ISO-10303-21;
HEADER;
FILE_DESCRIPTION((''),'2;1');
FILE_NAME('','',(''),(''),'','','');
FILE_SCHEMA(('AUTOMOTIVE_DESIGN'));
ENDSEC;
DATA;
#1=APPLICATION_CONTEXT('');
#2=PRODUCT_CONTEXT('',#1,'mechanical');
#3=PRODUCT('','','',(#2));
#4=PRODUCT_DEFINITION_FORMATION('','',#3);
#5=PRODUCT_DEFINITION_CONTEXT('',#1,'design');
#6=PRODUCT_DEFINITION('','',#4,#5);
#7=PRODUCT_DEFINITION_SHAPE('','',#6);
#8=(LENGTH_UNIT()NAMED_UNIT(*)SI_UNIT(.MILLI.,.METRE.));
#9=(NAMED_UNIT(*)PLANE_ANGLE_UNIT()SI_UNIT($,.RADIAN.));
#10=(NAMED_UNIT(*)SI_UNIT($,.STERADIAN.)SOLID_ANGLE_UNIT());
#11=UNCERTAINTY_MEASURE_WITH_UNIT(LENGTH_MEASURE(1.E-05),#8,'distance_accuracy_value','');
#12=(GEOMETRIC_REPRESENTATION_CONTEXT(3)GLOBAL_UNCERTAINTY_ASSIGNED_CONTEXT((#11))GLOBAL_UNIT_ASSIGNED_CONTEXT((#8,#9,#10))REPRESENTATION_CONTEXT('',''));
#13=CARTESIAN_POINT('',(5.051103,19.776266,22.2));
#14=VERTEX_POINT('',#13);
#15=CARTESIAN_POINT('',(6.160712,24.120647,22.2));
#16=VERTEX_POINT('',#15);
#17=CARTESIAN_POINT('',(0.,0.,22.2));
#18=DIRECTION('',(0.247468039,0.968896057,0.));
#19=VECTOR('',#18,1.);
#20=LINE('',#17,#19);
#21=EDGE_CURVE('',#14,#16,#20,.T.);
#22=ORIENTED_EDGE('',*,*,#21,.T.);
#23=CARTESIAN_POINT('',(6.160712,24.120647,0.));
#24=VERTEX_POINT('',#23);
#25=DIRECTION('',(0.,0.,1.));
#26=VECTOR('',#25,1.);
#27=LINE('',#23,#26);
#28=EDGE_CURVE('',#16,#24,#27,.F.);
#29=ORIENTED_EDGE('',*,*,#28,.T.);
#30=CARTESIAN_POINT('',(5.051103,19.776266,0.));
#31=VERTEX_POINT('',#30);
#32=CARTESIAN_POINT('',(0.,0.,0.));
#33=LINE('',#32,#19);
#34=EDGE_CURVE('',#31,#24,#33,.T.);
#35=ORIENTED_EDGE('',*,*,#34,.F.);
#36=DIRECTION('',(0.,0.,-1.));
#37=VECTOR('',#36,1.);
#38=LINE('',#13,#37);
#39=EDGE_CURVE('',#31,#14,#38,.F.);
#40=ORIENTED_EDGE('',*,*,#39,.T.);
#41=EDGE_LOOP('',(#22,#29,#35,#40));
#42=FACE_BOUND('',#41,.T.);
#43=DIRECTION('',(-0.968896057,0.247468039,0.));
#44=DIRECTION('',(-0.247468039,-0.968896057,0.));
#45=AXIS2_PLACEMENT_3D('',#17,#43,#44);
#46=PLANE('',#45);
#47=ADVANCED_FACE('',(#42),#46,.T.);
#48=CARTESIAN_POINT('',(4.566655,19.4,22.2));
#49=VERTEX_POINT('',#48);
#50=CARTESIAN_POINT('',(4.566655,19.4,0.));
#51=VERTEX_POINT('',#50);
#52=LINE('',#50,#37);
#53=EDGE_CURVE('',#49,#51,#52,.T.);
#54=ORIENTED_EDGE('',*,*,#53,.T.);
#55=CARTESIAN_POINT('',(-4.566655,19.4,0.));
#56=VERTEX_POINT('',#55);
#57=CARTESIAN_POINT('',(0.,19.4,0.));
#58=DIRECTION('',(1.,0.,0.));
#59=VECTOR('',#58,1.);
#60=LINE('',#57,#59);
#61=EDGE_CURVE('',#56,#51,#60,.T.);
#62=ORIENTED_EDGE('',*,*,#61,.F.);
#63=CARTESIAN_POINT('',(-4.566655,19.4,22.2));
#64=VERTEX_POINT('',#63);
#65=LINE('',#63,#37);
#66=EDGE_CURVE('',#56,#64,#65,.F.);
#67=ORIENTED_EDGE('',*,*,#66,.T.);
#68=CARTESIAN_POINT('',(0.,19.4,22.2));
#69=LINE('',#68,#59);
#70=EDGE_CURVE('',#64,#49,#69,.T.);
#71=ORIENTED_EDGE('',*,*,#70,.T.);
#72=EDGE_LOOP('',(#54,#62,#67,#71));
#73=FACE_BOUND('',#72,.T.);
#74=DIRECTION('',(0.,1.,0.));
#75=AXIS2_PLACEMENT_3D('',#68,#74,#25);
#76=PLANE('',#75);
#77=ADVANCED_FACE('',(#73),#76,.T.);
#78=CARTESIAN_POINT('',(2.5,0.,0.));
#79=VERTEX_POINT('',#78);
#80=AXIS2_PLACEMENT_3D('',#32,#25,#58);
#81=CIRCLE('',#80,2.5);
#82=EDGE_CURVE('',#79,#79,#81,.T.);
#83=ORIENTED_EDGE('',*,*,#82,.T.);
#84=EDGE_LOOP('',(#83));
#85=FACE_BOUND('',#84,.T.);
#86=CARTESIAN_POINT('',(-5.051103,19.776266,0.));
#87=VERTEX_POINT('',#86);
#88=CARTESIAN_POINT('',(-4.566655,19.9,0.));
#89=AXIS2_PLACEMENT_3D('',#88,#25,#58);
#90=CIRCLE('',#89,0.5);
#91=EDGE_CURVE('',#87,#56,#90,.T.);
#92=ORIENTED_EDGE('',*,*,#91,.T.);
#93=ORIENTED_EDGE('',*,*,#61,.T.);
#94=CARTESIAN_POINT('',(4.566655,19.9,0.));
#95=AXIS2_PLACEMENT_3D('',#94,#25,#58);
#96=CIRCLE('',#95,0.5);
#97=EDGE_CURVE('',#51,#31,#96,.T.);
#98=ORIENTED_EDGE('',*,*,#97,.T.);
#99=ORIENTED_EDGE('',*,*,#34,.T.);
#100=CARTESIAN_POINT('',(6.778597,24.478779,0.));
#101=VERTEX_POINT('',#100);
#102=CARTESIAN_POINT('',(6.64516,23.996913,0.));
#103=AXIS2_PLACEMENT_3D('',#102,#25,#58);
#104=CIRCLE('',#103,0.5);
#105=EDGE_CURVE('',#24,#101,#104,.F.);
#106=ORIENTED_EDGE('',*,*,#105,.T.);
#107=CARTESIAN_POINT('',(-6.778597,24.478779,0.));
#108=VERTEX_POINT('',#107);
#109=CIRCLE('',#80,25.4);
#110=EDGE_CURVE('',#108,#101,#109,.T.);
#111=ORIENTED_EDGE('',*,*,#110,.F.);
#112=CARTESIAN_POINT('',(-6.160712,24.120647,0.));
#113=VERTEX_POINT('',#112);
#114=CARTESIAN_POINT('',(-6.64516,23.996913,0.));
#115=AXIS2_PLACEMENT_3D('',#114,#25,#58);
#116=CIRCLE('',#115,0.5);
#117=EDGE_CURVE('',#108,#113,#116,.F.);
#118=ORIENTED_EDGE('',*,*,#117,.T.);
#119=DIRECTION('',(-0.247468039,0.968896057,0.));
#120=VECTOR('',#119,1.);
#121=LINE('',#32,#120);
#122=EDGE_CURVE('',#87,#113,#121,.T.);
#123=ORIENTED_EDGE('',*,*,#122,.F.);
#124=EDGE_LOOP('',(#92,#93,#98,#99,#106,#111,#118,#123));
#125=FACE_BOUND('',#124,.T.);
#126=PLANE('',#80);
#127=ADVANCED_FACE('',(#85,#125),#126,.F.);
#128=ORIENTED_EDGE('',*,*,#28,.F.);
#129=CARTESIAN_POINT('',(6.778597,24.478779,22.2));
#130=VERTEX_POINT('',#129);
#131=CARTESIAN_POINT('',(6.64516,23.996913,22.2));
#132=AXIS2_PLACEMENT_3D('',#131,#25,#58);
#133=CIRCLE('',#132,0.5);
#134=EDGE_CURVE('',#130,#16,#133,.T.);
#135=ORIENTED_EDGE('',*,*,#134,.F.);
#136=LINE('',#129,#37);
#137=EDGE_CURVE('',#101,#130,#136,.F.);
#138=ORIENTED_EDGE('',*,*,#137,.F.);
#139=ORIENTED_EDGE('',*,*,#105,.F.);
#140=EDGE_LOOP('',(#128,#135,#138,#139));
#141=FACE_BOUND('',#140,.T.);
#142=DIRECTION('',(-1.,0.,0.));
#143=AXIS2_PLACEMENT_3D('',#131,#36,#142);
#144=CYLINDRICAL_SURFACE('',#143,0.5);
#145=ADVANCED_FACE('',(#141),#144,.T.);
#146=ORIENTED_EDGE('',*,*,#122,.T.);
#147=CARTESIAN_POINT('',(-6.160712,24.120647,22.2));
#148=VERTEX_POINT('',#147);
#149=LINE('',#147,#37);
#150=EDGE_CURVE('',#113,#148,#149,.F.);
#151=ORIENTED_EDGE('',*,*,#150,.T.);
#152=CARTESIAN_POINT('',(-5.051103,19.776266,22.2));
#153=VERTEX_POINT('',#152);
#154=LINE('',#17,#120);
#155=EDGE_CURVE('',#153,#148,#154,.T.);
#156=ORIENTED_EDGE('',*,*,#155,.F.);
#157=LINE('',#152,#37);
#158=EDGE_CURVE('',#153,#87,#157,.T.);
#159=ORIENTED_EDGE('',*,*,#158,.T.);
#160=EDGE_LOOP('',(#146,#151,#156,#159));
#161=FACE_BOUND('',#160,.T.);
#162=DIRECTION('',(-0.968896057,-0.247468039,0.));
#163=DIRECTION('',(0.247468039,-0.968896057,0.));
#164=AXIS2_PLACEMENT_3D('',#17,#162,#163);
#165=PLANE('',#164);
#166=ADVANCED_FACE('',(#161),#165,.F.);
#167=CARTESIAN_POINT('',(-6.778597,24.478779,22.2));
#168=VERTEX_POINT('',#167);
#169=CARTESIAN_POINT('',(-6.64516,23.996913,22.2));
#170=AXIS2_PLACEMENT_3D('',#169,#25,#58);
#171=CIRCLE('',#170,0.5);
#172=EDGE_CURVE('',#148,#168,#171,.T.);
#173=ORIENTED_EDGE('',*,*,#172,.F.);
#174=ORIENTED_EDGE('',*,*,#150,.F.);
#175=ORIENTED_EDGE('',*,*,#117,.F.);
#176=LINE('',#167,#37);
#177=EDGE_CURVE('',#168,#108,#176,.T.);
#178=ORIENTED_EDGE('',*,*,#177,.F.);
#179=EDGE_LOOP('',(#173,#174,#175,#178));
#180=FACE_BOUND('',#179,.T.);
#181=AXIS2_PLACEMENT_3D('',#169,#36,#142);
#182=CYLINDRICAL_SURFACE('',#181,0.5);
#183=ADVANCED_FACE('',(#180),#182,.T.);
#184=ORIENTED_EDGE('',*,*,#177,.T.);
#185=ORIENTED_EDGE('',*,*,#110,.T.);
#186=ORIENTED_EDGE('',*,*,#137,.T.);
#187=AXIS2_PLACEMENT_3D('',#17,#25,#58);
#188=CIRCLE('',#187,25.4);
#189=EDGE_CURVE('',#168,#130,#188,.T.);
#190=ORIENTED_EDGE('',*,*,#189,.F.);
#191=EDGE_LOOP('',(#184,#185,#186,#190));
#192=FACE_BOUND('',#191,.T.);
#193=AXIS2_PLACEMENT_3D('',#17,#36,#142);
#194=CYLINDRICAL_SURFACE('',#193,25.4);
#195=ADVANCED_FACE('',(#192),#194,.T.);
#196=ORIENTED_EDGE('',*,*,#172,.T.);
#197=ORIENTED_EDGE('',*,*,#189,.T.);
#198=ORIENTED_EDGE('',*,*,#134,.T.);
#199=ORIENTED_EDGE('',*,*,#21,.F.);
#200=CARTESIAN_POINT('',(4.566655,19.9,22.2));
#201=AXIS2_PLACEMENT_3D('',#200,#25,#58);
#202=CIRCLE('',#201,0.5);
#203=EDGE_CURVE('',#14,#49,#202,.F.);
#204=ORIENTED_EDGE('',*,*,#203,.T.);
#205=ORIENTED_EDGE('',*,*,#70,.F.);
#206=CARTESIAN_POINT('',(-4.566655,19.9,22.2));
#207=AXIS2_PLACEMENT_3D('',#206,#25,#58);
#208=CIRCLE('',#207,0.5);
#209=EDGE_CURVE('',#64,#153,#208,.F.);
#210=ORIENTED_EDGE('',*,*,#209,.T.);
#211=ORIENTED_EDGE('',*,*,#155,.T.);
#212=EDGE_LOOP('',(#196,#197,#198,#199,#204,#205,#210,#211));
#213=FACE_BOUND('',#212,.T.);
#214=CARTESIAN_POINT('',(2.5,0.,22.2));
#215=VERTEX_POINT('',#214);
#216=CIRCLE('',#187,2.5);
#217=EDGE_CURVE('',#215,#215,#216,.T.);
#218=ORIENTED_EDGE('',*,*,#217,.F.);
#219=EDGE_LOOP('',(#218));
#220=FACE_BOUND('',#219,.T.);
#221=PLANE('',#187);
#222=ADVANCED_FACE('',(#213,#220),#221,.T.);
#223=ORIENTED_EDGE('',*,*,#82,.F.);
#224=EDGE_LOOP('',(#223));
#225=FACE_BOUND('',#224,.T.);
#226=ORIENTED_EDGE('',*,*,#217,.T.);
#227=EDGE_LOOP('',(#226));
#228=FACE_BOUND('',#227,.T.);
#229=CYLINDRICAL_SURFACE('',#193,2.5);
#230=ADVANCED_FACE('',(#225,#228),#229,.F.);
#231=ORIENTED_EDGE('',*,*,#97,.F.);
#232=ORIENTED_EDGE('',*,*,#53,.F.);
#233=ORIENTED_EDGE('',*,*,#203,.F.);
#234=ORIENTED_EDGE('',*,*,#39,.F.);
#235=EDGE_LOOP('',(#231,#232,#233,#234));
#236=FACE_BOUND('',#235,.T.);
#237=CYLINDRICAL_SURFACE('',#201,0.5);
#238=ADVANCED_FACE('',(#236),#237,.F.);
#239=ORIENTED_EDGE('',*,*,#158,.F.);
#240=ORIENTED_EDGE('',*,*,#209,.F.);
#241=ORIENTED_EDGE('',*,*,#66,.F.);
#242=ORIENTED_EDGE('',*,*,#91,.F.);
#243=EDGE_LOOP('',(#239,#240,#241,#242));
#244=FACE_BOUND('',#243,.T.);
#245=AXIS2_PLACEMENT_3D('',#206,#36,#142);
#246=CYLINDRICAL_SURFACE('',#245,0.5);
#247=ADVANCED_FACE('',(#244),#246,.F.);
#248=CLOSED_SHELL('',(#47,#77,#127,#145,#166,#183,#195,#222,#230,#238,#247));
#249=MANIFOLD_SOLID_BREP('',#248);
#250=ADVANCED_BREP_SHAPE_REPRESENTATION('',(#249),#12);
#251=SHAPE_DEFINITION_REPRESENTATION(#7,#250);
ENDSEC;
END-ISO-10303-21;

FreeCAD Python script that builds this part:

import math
import FreeCAD as App
import Part
import Sketcher


def edges_at(feature, points):
    """Names of the edges that pass closest to the given points."""
    edges = feature.Shape.Edges
    near = lambda p: min(range(len(edges)), key=lambda i: edges[i].distToShape(Part.Vertex(*p))[0])
    return sorted({f"Edge{near(p) + 1}" for p in points})

doc = App.newDocument("Part")
body = doc.addObject("PartDesign::Body", "Body")

# Sketch on XY plane
sketch1 = doc.addObject("Sketcher::SketchObject", "Sketch")
body.addObject(sketch1)
sketch1.AttachmentSupport = (doc.XY_Plane, [""])
sketch1.MapMode = "FlatFace"
sketch1.addGeometry(Part.LineSegment(App.Vector(5, 19.4, 0), App.Vector(-5, 19.4, 0)), False)
sketch1.addGeometry(Part.LineSegment(App.Vector(-5, 19.4, 0), App.Vector(-6.3, 24.6, 0)), False)
sketch1.addGeometry(Part.ArcOfCircle(Part.Circle(App.Vector(0, 0, 0), App.Vector(0, 0, 1), 25.4), math.radians(104), math.radians(360)), False)
sketch1.addGeometry(Part.ArcOfCircle(Part.Circle(App.Vector(0, 0, 0), App.Vector(0, 0, 1), 25.4), math.radians(0), math.radians(76)), False)
sketch1.addGeometry(Part.LineSegment(App.Vector(6.3, 24.6, 0), App.Vector(5, 19.4, 0)), False)
sketch1.addGeometry(Part.Circle(App.Vector(0, 0, 0), App.Vector(0, 0, 1), 2.5), False)
sketch1.addConstraint(Sketcher.Constraint("Coincident", 0, 2, 1, 1))
sketch1.addConstraint(Sketcher.Constraint("Coincident", 1, 2, 2, 1))
sketch1.addConstraint(Sketcher.Constraint("Tangent", 2, 2, 3, 1))
sketch1.addConstraint(Sketcher.Constraint("Coincident", 3, 2, 4, 1))
sketch1.addConstraint(Sketcher.Constraint("Coincident", 4, 2, 0, 1))
sketch1.addConstraint(Sketcher.Constraint("Horizontal", 0))
sketch1.addConstraint(Sketcher.Constraint("Coincident", 2, 3, -1, 1))
sketch1.addConstraint(Sketcher.Constraint("Coincident", 5, 3, -1, 1))
sketch1.addConstraint(Sketcher.Constraint("Equal", 2, 3))
sketch1.addConstraint(Sketcher.Constraint("PointOnObject", 2, 2, -1))
sketch1.addConstraint(Sketcher.Constraint("Horizontal", 1, 2, 3, 2))
sketch1.addConstraint(Sketcher.Constraint("Equal", 1, 4))
sketch1.addConstraint(Sketcher.Constraint("Diameter", 5, 5.0))
sketch1.addConstraint(Sketcher.Constraint("Radius", 2, 25.4))
sketch1.addConstraint(Sketcher.Constraint("DistanceX", 0, 2, 0, 1, 9.91))
sketch1.addConstraint(Sketcher.Constraint("DistanceY", -1, 1, 0, 2, 19.4))
sketch1.addConstraint(Sketcher.Constraint("DistanceX", 1, 2, -1, 1, 6.285688))
pad1 = doc.addObject("PartDesign::Pad", "Pad")
body.addObject(pad1)
pad1.Profile = sketch1
pad1.Length = 22.2
doc.recompute()

fillet = doc.addObject("PartDesign::Fillet", "Fillet")
body.addObject(fillet)
fillet.Base = (pad1, edges_at(pad1, [
    (-4.955, 19.4, 11.1),
    (4.955, 19.4, 11.1),
    (6.286, 24.61, 11.1),
    (-6.286, 24.61, 11.1),
]))
fillet.Radius = 0.5

doc.recompute()
